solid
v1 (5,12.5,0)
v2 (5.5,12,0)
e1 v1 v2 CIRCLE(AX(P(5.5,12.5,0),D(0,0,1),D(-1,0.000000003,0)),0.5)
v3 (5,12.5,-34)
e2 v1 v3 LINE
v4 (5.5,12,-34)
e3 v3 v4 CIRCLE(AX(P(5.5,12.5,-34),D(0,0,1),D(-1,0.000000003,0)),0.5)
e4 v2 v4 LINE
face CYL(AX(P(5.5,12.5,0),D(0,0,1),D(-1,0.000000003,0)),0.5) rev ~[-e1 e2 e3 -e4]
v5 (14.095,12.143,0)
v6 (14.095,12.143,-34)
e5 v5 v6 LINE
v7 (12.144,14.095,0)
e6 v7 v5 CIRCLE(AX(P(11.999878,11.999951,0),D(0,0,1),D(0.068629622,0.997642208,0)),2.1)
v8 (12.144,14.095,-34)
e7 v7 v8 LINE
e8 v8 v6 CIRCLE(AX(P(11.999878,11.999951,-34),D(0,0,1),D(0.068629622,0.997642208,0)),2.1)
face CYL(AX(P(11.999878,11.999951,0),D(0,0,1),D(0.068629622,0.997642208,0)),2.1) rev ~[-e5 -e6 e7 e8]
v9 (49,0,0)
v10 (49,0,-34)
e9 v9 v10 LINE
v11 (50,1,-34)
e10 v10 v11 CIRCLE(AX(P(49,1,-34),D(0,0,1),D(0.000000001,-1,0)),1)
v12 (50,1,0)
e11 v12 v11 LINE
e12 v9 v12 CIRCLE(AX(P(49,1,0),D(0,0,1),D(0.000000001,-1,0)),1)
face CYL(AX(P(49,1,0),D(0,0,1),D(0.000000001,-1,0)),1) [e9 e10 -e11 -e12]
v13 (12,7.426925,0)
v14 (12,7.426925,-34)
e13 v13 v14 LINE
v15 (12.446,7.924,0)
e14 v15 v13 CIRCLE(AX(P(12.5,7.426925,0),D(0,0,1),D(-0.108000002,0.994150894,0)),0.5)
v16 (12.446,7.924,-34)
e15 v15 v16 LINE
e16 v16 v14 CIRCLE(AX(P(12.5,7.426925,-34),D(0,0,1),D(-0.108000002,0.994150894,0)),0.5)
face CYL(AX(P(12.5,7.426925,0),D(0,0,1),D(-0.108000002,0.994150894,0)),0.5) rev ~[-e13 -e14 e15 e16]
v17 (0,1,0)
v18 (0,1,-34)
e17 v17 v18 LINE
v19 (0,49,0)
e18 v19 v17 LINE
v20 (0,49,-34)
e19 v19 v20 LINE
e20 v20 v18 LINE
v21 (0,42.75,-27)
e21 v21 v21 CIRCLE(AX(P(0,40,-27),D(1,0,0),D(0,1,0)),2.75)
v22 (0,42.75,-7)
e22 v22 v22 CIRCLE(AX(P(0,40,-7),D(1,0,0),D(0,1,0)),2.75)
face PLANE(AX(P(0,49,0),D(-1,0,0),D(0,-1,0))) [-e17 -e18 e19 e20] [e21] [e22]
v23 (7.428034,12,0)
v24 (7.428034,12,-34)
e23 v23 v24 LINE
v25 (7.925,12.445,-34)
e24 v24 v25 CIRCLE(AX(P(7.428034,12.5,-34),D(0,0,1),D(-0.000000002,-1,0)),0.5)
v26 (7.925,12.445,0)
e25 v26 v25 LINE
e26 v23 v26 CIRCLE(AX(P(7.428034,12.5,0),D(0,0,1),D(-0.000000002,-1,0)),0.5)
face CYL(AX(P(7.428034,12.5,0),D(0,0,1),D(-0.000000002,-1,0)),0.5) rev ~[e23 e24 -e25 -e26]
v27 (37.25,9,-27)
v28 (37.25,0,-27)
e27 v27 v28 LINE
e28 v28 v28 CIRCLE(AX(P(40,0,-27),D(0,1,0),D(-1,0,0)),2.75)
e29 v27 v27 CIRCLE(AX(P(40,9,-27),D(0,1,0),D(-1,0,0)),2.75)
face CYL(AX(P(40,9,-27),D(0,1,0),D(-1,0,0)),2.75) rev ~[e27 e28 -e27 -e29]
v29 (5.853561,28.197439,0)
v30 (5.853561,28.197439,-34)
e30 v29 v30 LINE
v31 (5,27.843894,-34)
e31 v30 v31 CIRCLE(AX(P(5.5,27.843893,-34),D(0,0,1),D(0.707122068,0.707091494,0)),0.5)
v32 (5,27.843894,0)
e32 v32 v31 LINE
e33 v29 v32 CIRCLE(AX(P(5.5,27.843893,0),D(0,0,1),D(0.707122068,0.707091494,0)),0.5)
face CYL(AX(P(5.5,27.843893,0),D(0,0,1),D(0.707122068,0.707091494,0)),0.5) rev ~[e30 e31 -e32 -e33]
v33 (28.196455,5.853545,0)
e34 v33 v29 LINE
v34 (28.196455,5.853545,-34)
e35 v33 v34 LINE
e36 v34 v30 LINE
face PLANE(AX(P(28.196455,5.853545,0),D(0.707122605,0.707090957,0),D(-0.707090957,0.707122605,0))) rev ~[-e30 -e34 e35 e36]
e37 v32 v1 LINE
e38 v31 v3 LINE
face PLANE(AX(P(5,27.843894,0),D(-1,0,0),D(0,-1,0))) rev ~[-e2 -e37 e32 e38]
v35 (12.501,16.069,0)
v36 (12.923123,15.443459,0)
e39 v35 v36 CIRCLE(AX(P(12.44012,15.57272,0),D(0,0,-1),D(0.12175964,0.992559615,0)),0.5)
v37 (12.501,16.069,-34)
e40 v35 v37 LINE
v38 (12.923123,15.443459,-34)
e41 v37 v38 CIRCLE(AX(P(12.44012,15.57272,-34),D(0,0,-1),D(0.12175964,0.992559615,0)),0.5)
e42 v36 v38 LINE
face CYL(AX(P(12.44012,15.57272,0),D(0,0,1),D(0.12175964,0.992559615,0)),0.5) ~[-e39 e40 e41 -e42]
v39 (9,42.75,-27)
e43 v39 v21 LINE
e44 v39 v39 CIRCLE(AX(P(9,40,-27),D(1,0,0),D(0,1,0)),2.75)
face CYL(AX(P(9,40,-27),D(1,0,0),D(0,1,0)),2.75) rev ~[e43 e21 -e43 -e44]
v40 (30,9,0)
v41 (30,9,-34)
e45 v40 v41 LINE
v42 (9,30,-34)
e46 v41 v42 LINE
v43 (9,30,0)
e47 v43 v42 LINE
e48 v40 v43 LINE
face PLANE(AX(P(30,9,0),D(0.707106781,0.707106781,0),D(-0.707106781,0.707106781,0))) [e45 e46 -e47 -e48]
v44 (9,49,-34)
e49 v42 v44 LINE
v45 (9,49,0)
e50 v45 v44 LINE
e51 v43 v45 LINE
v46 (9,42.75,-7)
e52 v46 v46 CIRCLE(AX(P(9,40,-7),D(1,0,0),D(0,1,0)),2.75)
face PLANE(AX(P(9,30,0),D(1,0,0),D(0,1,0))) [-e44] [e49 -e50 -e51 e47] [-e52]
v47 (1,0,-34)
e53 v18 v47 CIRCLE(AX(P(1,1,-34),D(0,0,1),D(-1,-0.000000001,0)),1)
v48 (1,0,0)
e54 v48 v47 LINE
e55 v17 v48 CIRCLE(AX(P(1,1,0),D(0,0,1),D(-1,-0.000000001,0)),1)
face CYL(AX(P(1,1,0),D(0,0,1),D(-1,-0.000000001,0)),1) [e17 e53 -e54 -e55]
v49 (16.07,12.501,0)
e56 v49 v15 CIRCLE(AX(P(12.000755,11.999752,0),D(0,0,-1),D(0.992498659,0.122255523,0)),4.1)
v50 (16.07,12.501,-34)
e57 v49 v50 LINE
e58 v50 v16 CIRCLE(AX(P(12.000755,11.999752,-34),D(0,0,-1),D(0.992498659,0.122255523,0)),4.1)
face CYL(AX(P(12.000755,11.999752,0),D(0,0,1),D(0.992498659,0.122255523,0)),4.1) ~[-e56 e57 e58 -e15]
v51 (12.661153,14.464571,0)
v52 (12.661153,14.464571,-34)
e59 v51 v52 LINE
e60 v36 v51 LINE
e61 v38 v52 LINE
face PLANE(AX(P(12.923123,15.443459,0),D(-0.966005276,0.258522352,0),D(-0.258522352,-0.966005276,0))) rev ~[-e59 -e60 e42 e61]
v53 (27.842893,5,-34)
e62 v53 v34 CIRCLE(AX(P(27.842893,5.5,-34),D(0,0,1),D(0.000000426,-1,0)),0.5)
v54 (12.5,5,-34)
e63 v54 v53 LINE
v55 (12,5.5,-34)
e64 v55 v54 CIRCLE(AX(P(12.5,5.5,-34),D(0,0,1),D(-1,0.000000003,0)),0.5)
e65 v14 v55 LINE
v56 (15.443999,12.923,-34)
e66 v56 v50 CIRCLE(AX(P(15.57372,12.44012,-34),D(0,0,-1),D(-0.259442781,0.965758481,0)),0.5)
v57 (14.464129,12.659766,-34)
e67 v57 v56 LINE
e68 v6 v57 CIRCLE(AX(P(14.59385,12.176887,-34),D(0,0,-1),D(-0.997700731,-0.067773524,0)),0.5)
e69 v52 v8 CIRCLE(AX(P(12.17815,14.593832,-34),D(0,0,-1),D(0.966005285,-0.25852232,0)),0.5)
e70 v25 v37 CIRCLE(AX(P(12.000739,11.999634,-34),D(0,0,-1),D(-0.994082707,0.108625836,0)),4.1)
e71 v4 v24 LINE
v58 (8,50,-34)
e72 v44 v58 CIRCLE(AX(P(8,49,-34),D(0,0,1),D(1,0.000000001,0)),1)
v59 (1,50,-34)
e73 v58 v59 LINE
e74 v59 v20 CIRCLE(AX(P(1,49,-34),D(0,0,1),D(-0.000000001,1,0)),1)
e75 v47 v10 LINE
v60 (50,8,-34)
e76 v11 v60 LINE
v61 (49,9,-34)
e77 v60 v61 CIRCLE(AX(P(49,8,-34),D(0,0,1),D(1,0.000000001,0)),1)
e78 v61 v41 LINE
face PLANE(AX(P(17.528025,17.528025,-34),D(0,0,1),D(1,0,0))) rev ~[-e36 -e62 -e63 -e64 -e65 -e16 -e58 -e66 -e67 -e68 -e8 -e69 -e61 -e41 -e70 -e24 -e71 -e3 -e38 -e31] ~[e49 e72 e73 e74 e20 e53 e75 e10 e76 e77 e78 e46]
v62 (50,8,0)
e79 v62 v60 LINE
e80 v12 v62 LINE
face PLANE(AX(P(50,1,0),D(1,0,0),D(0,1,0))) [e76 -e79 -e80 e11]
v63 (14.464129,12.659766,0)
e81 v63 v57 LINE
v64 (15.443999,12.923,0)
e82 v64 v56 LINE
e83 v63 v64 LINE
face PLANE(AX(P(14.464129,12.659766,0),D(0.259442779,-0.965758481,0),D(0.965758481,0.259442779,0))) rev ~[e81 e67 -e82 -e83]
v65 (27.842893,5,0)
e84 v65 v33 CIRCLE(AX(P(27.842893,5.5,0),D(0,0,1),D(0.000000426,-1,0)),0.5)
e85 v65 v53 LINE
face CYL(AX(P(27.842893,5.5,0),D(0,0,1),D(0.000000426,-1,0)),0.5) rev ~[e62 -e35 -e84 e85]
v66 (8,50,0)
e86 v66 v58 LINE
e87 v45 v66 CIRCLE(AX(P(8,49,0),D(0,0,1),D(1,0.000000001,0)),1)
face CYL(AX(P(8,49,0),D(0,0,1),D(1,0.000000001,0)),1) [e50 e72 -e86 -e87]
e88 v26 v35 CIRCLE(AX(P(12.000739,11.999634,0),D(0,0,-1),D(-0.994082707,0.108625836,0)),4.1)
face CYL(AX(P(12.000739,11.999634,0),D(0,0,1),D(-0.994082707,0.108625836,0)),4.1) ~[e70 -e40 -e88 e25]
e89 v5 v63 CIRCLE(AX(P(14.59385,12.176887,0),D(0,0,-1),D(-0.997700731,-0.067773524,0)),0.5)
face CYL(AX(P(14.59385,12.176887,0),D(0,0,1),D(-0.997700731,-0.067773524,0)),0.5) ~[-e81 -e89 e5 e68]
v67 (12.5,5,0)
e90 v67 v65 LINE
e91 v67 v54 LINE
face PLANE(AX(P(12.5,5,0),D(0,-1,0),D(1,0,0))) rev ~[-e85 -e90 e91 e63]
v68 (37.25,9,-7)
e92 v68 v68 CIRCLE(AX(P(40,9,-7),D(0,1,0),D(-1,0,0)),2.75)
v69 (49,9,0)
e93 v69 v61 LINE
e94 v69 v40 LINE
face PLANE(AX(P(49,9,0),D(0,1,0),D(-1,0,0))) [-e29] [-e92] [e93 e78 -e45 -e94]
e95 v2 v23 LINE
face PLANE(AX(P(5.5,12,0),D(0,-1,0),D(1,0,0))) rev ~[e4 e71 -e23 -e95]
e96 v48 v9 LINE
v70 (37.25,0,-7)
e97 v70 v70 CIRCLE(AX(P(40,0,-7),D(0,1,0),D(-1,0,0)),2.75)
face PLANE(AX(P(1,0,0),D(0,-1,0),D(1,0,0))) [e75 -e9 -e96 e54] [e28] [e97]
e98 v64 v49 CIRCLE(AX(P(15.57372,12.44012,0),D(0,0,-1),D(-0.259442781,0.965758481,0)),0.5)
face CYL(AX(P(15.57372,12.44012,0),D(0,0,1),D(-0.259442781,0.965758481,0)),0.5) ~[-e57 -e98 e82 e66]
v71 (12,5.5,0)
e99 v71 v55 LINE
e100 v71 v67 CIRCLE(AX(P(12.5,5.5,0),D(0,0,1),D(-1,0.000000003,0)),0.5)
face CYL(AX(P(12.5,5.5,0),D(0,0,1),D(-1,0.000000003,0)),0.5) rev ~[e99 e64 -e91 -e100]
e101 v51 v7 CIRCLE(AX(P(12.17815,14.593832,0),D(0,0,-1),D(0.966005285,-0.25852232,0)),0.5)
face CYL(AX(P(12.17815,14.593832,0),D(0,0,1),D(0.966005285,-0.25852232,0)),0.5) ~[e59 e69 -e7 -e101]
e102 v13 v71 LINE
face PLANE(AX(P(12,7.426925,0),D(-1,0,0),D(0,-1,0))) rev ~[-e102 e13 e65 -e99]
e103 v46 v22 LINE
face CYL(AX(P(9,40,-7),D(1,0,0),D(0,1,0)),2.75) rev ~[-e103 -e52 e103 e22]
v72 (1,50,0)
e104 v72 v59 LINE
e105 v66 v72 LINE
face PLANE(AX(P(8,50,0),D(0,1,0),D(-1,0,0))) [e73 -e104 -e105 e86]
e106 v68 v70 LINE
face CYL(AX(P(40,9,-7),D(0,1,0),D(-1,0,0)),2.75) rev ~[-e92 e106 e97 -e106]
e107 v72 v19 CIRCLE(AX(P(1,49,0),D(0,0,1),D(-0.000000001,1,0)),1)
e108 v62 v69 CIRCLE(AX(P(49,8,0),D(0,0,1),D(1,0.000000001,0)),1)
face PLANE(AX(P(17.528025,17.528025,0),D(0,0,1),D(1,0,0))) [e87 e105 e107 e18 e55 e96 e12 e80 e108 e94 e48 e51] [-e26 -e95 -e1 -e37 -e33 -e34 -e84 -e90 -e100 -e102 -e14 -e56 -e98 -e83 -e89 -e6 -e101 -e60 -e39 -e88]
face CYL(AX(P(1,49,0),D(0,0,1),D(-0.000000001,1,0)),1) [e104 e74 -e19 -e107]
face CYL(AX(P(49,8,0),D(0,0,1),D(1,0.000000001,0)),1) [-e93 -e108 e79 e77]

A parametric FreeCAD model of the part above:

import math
import FreeCAD as App
import Part
import Sketcher

V = App.Vector

doc = App.newDocument("Part")
body = doc.addObject("PartDesign::Body", "Body")

# Sketch on XY plane
sketch1 = body.newObject("Sketcher::SketchObject", "Sketch")
sketch1.AttachmentSupport = (doc.getObject("XY_Plane"), [""])
sketch1.MapMode = "FlatFace"
sketch1.addGeometry([
    Part.LineSegment(V(9, 30, 0), V(9, 49, 0)),  # 0
    Part.ArcOfCircle(Part.Circle(V(8, 49, 0), V(0, 0, 1), 1), math.radians(0), math.radians(90)),  # 1
    Part.LineSegment(V(8, 50, 0), V(1, 50, 0)),  # 2
    Part.ArcOfCircle(Part.Circle(V(1, 49, 0), V(0, 0, 1), 1), math.radians(90), math.radians(180)),  # 3
    Part.LineSegment(V(0, 49, 0), V(0, 1, 0)),  # 4
    Part.ArcOfCircle(Part.Circle(V(1, 1, 0), V(0, 0, 1), 1), math.radians(-180), math.radians(-90)),  # 5
    Part.LineSegment(V(1, 0, 0), V(49, 0, 0)),  # 6
    Part.ArcOfCircle(Part.Circle(V(49, 1, 0), V(0, 0, 1), 1), math.radians(-90), math.radians(0)),  # 7
    Part.LineSegment(V(50, 1, 0), V(50, 8, 0)),  # 8
    Part.ArcOfCircle(Part.Circle(V(49, 8, 0), V(0, 0, 1), 1), math.radians(0), math.radians(90)),  # 9
    Part.LineSegment(V(49, 9, 0), V(30, 9, 0)),  # 10
    Part.LineSegment(V(30, 9, 0), V(9, 30, 0)),  # 11
    Part.LineSegment(V(7.43, 12, 0), V(5.5, 12, 0)),  # 12
    Part.ArcOfCircle(Part.Circle(V(5.5, 12.5, 0), V(0, 0, 1), 0.5), math.radians(180), math.radians(270)),  # 13
    Part.LineSegment(V(5, 12.5, 0), V(5, 27.84, 0)),  # 14
    Part.ArcOfCircle(Part.Circle(V(5.5, 27.84, 0), V(0, 0, 1), 0.5), math.radians(45), math.radians(180)),  # 15
    Part.LineSegment(V(5.85, 28.2, 0), V(28.2, 5.85, 0)),  # 16
    Part.ArcOfCircle(Part.Circle(V(27.84, 5.5, 0), V(0, 0, 1), 0.5), math.radians(-90), math.radians(45)),  # 17
    Part.LineSegment(V(27.84, 5, 0), V(12.5, 5, 0)),  # 18
    Part.ArcOfCircle(Part.Circle(V(12.5, 5.5, 0), V(0, 0, 1), 0.5), math.radians(180), math.radians(270)),  # 19
    Part.LineSegment(V(12, 5.5, 0), V(12, 7.43, 0)),  # 20
    Part.ArcOfCircle(Part.Circle(V(12.5, 7.43, 0), V(0, 0, 1), 0.5), math.radians(96), math.radians(180)),  # 21
    Part.ArcOfCircle(Part.Circle(V(12, 12, 0), V(0, 0, 1), 4.1), math.radians(-84), math.radians(7)),  # 22
    Part.ArcOfCircle(Part.Circle(V(15.57, 12.44, 0), V(0, 0, 1), 0.5), math.radians(7), math.radians(105)),  # 23
    Part.LineSegment(V(15.44, 12.92, 0), V(14.46, 12.66, 0)),  # 24
    Part.ArcOfCircle(Part.Circle(V(14.59, 12.18, 0), V(0, 0, 1), 0.5), math.radians(105), math.radians(184)),  # 25
    Part.ArcOfCircle(Part.Circle(V(12, 12, 0), V(0, 0, 1), 2.1), math.radians(86), math.radians(364)),  # 26
    Part.ArcOfCircle(Part.Circle(V(12.18, 14.59, 0), V(0, 0, 1), 0.5), math.radians(-94), math.radians(-15)),  # 27
    Part.LineSegment(V(12.66, 14.46, 0), V(12.92, 15.44, 0)),  # 28
    Part.ArcOfCircle(Part.Circle(V(12.44, 15.57, 0), V(0, 0, 1), 0.5), math.radians(-15), math.radians(83)),  # 29
    Part.ArcOfCircle(Part.Circle(V(12, 12, 0), V(0, 0, 1), 4.1), math.radians(83), math.radians(174)),  # 30
    Part.ArcOfCircle(Part.Circle(V(7.43, 12.5, 0), V(0, 0, 1), 0.5), math.radians(-90), math.radians(-6)),  # 31
], False)
sketch1.addConstraint([
    Sketcher.Constraint("Tangent", 0, 2, 1, 1),
    Sketcher.Constraint("Tangent", 1, 2, 2, 1),
    Sketcher.Constraint("Tangent", 2, 2, 3, 1),
    Sketcher.Constraint("Tangent", 3, 2, 4, 1),
    Sketcher.Constraint("Tangent", 4, 2, 5, 1),
    Sketcher.Constraint("Tangent", 5, 2, 6, 1),
    Sketcher.Constraint("Tangent", 6, 2, 7, 1),
    Sketcher.Constraint("Tangent", 7, 2, 8, 1),
    Sketcher.Constraint("Tangent", 8, 2, 9, 1),
    Sketcher.Constraint("Tangent", 9, 2, 10, 1),
    Sketcher.Constraint("Coincident", 10, 2, 11, 1),
    Sketcher.Constraint("Coincident", 11, 2, 0, 1),
    Sketcher.Constraint("Tangent", 12, 2, 13, 2),
    Sketcher.Constraint("Tangent", 13, 1, 14, 1),
    Sketcher.Constraint("Tangent", 14, 2, 15, 2),
    Sketcher.Constraint("Tangent", 15, 1, 16, 1),
    Sketcher.Constraint("Tangent", 16, 2, 17, 2),
    Sketcher.Constraint("Tangent", 17, 1, 18, 1),
    Sketcher.Constraint("Tangent", 18, 2, 19, 2),
    Sketcher.Constraint("Tangent", 19, 1, 20, 1),
    Sketcher.Constraint("Tangent", 20, 2, 21, 2),
    Sketcher.Constraint("Coincident", 21, 1, 22, 1),
    Sketcher.Constraint("Coincident", 22, 2, 23, 1),
    Sketcher.Constraint("Tangent", 23, 2, 24, 1),
    Sketcher.Constraint("Tangent", 24, 2, 25, 1),
    Sketcher.Constraint("Coincident", 25, 2, 26, 2),
    Sketcher.Constraint("Coincident", 26, 1, 27, 1),
    Sketcher.Constraint("Tangent", 27, 2, 28, 1),
    Sketcher.Constraint("Tangent", 28, 2, 29, 1),
    Sketcher.Constraint("Coincident", 29, 2, 30, 1),
    Sketcher.Constraint("Coincident", 30, 2, 31, 2),
    Sketcher.Constraint("Tangent", 31, 1, 12, 1),
    Sketcher.Constraint("Vertical", 0),
    Sketcher.Constraint("Horizontal", 2),
    Sketcher.Constraint("Vertical", 4),
    Sketcher.Constraint("Horizontal", 6),
    Sketcher.Constraint("Vertical", 8),
    Sketcher.Constraint("Horizontal", 10),
    Sketcher.Constraint("Horizontal", 12),
    Sketcher.Constraint("Vertical", 14),
    Sketcher.Constraint("Horizontal", 18),
    Sketcher.Constraint("Vertical", 20),
    Sketcher.Constraint("Equal", 1, 3),
    Sketcher.Constraint("Equal", 3, 5),
    Sketcher.Constraint("Equal", 5, 7),
    Sketcher.Constraint("Equal", 7, 9),
    Sketcher.Constraint("Equal", 13, 15),
    Sketcher.Constraint("Equal", 15, 17),
    Sketcher.Constraint("Equal", 17, 19),
    Sketcher.Constraint("Equal", 19, 21),
    Sketcher.Constraint("Equal", 21, 23),
    Sketcher.Constraint("Equal", 23, 25),
    Sketcher.Constraint("Equal", 25, 27),
    Sketcher.Constraint("Equal", 27, 29),
    Sketcher.Constraint("Equal", 22, 30),
    Sketcher.Constraint("Equal", 29, 31),
    Sketcher.Constraint("PointOnObject", 3, 2, -2),
    Sketcher.Constraint("PointOnObject", 5, 2, -1),
    Sketcher.Constraint("Equal", 10, 0),
    Sketcher.Constraint("Equal", 6, 4),
    Sketcher.Constraint("Equal", 2, 8),
    Sketcher.Constraint("Radius", 1, 1.0),
    Sketcher.Constraint("Radius", 13, 0.5),
    Sketcher.Constraint("Radius", 22, 4.1),
    Sketcher.Constraint("Radius", 26, 2.1),
    Sketcher.Constraint("DistanceX", 2, 2, 2, 1, 7.0),
    Sketcher.Constraint("DistanceX", 6, 1, 6, 2, 48.0),
    Sketcher.Constraint("DistanceX", 10, 2, 10, 1, 19.0),
    Sketcher.Constraint("DistanceY", -1, 1, 12, 2, 12.0),
    Sketcher.Constraint("DistanceX", -1, 1, 13, 1, 5.0),
    Sketcher.Constraint("DistanceY", -1, 1, 17, 1, 5.0),
    Sketcher.Constraint("DistanceX", -1, 1, 19, 1, 12.0),
    Sketcher.Constraint("DistanceX", -1, 1, 22, 2, 16.07),
    Sketcher.Constraint("DistanceY", 25, 2, 23, 2, 0.78),
    Sketcher.Constraint("DistanceX", -1, 1, 21, 1, 12.446),
    Sketcher.Constraint("DistanceY", -1, 1, 21, 1, 7.924),
    Sketcher.Constraint("DistanceY", -1, 1, 22, 2, 12.501),
    Sketcher.Constraint("DistanceX", -1, 1, 23, 2, 15.443999),
    Sketcher.Constraint("DistanceY", -1, 1, 23, 2, 12.923),
    Sketcher.Constraint("DistanceX", -1, 1, 25, 2, 14.095),
    Sketcher.Constraint("DistanceX", -1, 1, 26, 1, 12.144),
    Sketcher.Constraint("DistanceY", -1, 1, 26, 1, 14.095),
    Sketcher.Constraint("DistanceX", -1, 1, 29, 2, 12.501),
    Sketcher.Constraint("DistanceY", -1, 1, 29, 2, 16.069),
    Sketcher.Constraint("DistanceX", -1, 1, 30, 2, 7.925),
    Sketcher.Constraint("DistanceY", -1, 1, 30, 2, 12.445),
    Sketcher.Constraint("DistanceX", 27, 3, 25, 3, 2.4157),
    Sketcher.Constraint("DistanceX", 29, 3, 23, 3, 3.1336),
    Sketcher.Constraint("Distance", 16, 31.59833),
    Sketcher.Constraint("DistanceX", 18, 2, 18, 1, 15.342893),
])
pad1 = body.newObject("PartDesign::Pad", "Pad")
pad1.Profile = sketch1
pad1.Length = 34
pad1.Reversed = True

# Sketch on XZ plane
sketch2 = body.newObject("Sketcher::SketchObject", "Sketch001")
sketch2.AttachmentSupport = (doc.getObject("XZ_Plane"), [""])
sketch2.MapMode = "FlatFace"
sketch2.AttachmentOffset = App.Placement(V(0, 0, -9), App.Rotation())
sketch2.addGeometry([
    Part.Circle(V(40, -27, 0), V(0, 0, 1), 2.8),
    Part.Circle(V(40, -7, 0), V(0, 0, 1), 2.8),
], False)
sketch2.addConstraint([
    Sketcher.Constraint("Equal", 0, 1),
    Sketcher.Constraint("Vertical", 0, 3, 1, 3),
    Sketcher.Constraint("Diameter", 0, 5.5),
    Sketcher.Constraint("DistanceX", -1, 1, 0, 3, 40.0),
    Sketcher.Constraint("DistanceY", 0, 3, -1, 1, 27.0),
    Sketcher.Constraint("DistanceY", 1, 3, -1, 1, 7.0),
])
pocket1 = body.newObject("PartDesign::Pocket", "Pocket")
pocket1.Profile = sketch2
pocket1.Type = "ThroughAll"
pocket1.Reversed = True

# Sketch on YZ plane
sketch3 = body.newObject("Sketcher::SketchObject", "Sketch002")
sketch3.AttachmentSupport = (doc.getObject("YZ_Plane"), [""])
sketch3.MapMode = "FlatFace"
sketch3.AttachmentOffset = App.Placement(V(0, 0, 9), App.Rotation())
sketch3.addGeometry([
    Part.Circle(V(40, -7, 0), V(0, 0, 1), 2.8),
    Part.Circle(V(40, -27, 0), V(0, 0, 1), 2.8),
], False)
sketch3.addConstraint([
    Sketcher.Constraint("Equal", 0, 1),
    Sketcher.Constraint("Vertical", 0, 3, 1, 3),
    Sketcher.Constraint("Diameter", 0, 5.5),
    Sketcher.Constraint("DistanceX", -1, 1, 0, 3, 40.0),
    Sketcher.Constraint("DistanceY", 0, 3, -1, 1, 7.0),
    Sketcher.Constraint("DistanceY", 1, 3, -1, 1, 27.0),
])
pocket2 = body.newObject("PartDesign::Pocket", "Pocket001")
pocket2.Profile = sketch3
pocket2.Type = "ThroughAll"

doc.recompute()
